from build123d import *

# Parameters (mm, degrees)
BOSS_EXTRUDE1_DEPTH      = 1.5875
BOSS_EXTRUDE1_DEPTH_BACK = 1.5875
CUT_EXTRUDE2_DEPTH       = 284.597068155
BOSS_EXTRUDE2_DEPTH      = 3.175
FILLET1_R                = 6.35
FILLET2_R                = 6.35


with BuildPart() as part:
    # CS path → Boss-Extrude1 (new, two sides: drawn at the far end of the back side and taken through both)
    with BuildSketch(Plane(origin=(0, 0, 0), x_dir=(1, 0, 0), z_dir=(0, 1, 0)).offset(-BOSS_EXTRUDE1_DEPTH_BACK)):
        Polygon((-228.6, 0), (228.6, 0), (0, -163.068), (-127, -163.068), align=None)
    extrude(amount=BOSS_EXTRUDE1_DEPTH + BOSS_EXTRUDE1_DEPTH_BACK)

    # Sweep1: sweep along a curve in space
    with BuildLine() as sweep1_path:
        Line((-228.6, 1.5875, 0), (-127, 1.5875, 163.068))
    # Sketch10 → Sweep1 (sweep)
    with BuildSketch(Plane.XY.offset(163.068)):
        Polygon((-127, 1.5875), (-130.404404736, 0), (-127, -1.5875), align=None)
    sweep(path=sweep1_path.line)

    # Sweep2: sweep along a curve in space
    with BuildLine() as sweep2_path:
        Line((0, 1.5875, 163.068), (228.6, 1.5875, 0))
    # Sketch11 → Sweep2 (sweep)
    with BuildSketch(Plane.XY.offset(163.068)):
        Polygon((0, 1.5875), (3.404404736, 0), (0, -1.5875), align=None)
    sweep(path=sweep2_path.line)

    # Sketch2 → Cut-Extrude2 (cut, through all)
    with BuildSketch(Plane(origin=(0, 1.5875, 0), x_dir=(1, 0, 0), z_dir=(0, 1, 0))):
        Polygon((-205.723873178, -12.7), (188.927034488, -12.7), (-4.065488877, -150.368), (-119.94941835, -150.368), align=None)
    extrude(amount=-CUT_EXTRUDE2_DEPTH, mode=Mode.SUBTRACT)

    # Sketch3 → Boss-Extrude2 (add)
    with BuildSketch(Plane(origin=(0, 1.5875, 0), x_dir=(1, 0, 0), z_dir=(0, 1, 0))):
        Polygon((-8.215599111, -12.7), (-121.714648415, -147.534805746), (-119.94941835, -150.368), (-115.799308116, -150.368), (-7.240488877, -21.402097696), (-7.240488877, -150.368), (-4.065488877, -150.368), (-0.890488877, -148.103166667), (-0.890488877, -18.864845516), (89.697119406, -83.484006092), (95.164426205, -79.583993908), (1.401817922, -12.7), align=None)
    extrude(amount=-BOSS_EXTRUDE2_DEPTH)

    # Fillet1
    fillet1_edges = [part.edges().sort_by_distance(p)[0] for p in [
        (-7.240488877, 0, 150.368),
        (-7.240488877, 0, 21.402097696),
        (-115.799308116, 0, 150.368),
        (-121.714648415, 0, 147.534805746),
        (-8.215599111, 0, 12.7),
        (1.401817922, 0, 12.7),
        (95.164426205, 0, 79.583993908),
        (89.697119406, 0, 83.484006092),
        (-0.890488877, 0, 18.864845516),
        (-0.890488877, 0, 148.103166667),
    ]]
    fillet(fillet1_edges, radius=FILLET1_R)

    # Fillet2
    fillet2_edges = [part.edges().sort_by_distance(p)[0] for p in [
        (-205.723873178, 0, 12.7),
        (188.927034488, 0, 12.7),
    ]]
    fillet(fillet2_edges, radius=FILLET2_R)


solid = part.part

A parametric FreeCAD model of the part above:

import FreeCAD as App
import Part
import Sketcher
from FreeCAD import Vector
Q = App.Units.Quantity


def edges_at(feature, points):
    """Names of the edges that pass closest to the given points."""
    edges = feature.Shape.Edges
    near = lambda p: min(range(len(edges)), key=lambda i: edges[i].distToShape(Part.Vertex(*p))[0])
    return sorted({f"Edge{near(p) + 1}" for p in points})


def add_polygon(sketch, points):
    """Adds a closed chain of lines whose ends are joined by coincident constraints."""
    first, n = sketch.GeometryCount, len(points)
    for a, b in zip(points, points[1:] + points[:1]):
        sketch.addGeometry(Part.LineSegment(App.Vector(*a, 0), App.Vector(*b, 0)), False)
    for i in range(n):
        sketch.addConstraint(Sketcher.Constraint("Coincident", first + i, 2, first + (i + 1) % n, 1))

doc = App.newDocument("Part")
body = doc.addObject("PartDesign::Body", "Body")

# Sketch on XZ plane
sketch1 = body.newObject("Sketcher::SketchObject", "Sketch")
sketch1.AttachmentSupport = (doc.getObject("XZ_Plane"), [""])
sketch1.MapMode = "FlatFace"
add_polygon(sketch1, [(229, 0), (-229, 0), (-127, 163), (0, 163)])  # lines 0-3
sketch1.addConstraint(Sketcher.Constraint("Horizontal", 0))
sketch1.addConstraint(Sketcher.Constraint("Horizontal", 2))
sketch1.addConstraint(Sketcher.Constraint("Symmetric", 0, 2, 3, 2, -1, 1))
sketch1.addConstraint(Sketcher.Constraint("PointOnObject", 2, 2, -2))
sketch1.addConstraint(Sketcher.Constraint("DistanceX", 0, 2, 0, 1, Q("18 in")))
sketch1.addConstraint(Sketcher.Constraint("DistanceX", 2, 1, 2, 2, Q("5 in")))
sketch1.addConstraint(Sketcher.Constraint("DistanceY", -1, 1, 1, 2, Q("6.42 in")))
pad1 = body.newObject("PartDesign::Pad", "Pad")
pad1.Profile = sketch1
pad1.Type = "TwoLengths"
pad1.Length = Q("0.0625 in")
pad1.Length2 = Q("0.0625 in")
pad1.Reversed = True

# Sketch on XY plane
sketch2 = body.newObject("Sketcher::SketchObject", "Sketch001")
sketch2.AttachmentSupport = (doc.getObject("XY_Plane"), [""])
sketch2.MapMode = "FlatFace"
sketch2.AttachmentOffset = App.Placement(Vector(0, 0, 6.42 * 25.4), App.Rotation())
add_polygon(sketch2, [(-127, 1.6), (-130.4, 0), (-127, -1.6)])  # lines 0-2
sketch2.addConstraint(Sketcher.Constraint("Vertical", 2))
sketch2.addConstraint(Sketcher.Constraint("PointOnObject", 0, 2, -1))
sketch2.addConstraint(Sketcher.Constraint("Equal", 0, 1))
sketch2.addConstraint(Sketcher.Constraint("DistanceX", 1, 2, -1, 1, Q("5 in")))
sketch2.addConstraint(Sketcher.Constraint("Angle", 0, Q("-155 deg")))
sketch2.addConstraint(Sketcher.Constraint("DistanceY", 2, 1, 2, 2, Q("0.125 in")))

# Sketch on an angled plane
sketch3 = body.newObject("Sketcher::SketchObject", "Sketch002")
sketch3.Placement = App.Placement(Vector(-164.674272, 0, 102.600793), App.Rotation(Vector(0.528810082, 0, 0.848740182), Vector(0, 0.999999999, 0), Vector(-0.848740182, 0, 0.528810082), "ZXY"))
sketch3.addGeometry(Part.LineSegment(Vector(-121, 2, 0), Vector(71, 2, 0)), False)
sketch3.addConstraint(Sketcher.Constraint("Horizontal", 0))
sketch3.addConstraint(Sketcher.Constraint("DistanceY", -1, 1, 0, 1, Q("0.0625 in")))
sketch3.addConstraint(Sketcher.Constraint("DistanceX", 0, 1, 0, 2, Q("192.129468 mm")))
sketch3.addConstraint(Sketcher.Constraint("DistanceX", 0, 1, -1, 1, Q("120.885985 mm")))
doc.recompute()

additivepipe = body.newObject("PartDesign::AdditivePipe", "AdditivePipe")
additivepipe.Profile = sketch2
additivepipe.Spine = (sketch3, ["Edge1"])

# Sketch on XY plane
sketch4 = body.newObject("Sketcher::SketchObject", "Sketch003")
sketch4.AttachmentSupport = (doc.getObject("XY_Plane"), [""])
sketch4.MapMode = "FlatFace"
sketch4.AttachmentOffset = App.Placement(Vector(0, 0, 6.42 * 25.4), App.Rotation())
add_polygon(sketch4, [(3.4, 0), (0, 1.6), (0, -1.6)])  # lines 0-2
sketch4.addConstraint(Sketcher.Constraint("Vertical", 1))
sketch4.addConstraint(Sketcher.Constraint("Symmetric", 0, 2, 1, 2, -1, 1))
sketch4.addConstraint(Sketcher.Constraint("PointOnObject", 2, 2, -1))
sketch4.addConstraint(Sketcher.Constraint("Angle", 0, Q("155 deg")))
sketch4.addConstraint(Sketcher.Constraint("DistanceY", 1, 2, 1, 1, Q("0.125 in")))

# Sketch on an angled plane
sketch5 = body.newObject("Sketcher::SketchObject", "Sketch004")
sketch5.Placement = App.Placement(Vector(77.093328, 0, 108.074759), App.Rotation(Vector(0.814100021, 0, -0.580724682), Vector(0, 1, 0), Vector(0.580724682, 0, 0.814100021), "ZXY"))
sketch5.addGeometry(Part.LineSegment(Vector(-95, 2, 0), Vector(186, 2, 0)), False)
sketch5.addConstraint(Sketcher.Constraint("Horizontal", 0))
sketch5.addConstraint(Sketcher.Constraint("DistanceY", -1, 1, 0, 1, Q("0.0625 in")))
sketch5.addConstraint(Sketcher.Constraint("DistanceX", -1, 1, 0, 2, Q("7.3269002 in")))
sketch5.addConstraint(Sketcher.Constraint("DistanceX", 0, 1, 0, 2, Q("280.800877 mm")))
doc.recompute()

additivepipe2 = body.newObject("PartDesign::AdditivePipe", "AdditivePipe001")
additivepipe2.Profile = sketch4
additivepipe2.Spine = (sketch5, ["Edge1"])

# Sketch on XZ plane
sketch6 = body.newObject("Sketcher::SketchObject", "Sketch005")
sketch6.AttachmentSupport = (doc.getObject("XZ_Plane"), [""])
sketch6.MapMode = "FlatFace"
sketch6.AttachmentOffset = App.Placement(Vector(0, 0, -0.0625 * 25.4), App.Rotation())
add_polygon(sketch6, [(189, 13), (-206, 13), (-120, 150), (-4, 150)])  # lines 0-3
sketch6.addConstraint(Sketcher.Constraint("Horizontal", 0))
sketch6.addConstraint(Sketcher.Constraint("Horizontal", 2))
sketch6.addConstraint(Sketcher.Constraint("DistanceY", -1, 1, 0, 2, Q("0.5 in")))
sketch6.addConstraint(Sketcher.Constraint("DistanceY", -1, 1, 1, 2, Q("5.92 in")))
sketch6.addConstraint(Sketcher.Constraint("DistanceX", 2, 1, 2, 2, Q("115.883929 mm")))
sketch6.addConstraint(Sketcher.Constraint("Distance", 1, Q("162.20276 mm")))
sketch6.addConstraint(Sketcher.Constraint("DistanceX", 0, 2, 0, 1, Q("394.650908 mm")))
sketch6.addConstraint(Sketcher.Constraint("DistanceX", 1, 2, -1, 1, Q("119.949418 mm")))
pocket1 = body.newObject("PartDesign::Pocket", "Pocket")
pocket1.Profile = sketch6
pocket1.Type = "ThroughAll"
pocket1.Reversed = True

# Sketch on XZ plane
sketch7 = body.newObject("Sketcher::SketchObject", "Sketch006")
sketch7.AttachmentSupport = (doc.getObject("XZ_Plane"), [""])
sketch7.MapMode = "FlatFace"
sketch7.AttachmentOffset = App.Placement(Vector(0, 0, -0.0625 * 25.4), App.Rotation())
add_polygon(sketch7, [(-8.2, 12.7), (-121.7, 147.5), (-119.9, 150.4), (-115.8, 150.4), (-7.2, 21.4), (-7.2, 150.4), (-4.1, 150.4), (-0.9, 148.1), (-0.9, 18.9), (89.7, 83.5), (95.2, 79.6), (1.4, 12.7)])  # lines 0-11
sketch7.addConstraint(Sketcher.Constraint("Horizontal", 2))
sketch7.addConstraint(Sketcher.Constraint("Vertical", 4))
sketch7.addConstraint(Sketcher.Constraint("Horizontal", 5))
sketch7.addConstraint(Sketcher.Constraint("Vertical", 7))
sketch7.addConstraint(Sketcher.Constraint("Horizontal", 11))
sketch7.addConstraint(Sketcher.Constraint("Parallel", 0, 3))
sketch7.addConstraint(Sketcher.Constraint("Parallel", 6, 9))
sketch7.addConstraint(Sketcher.Constraint("Parallel", 8, 10))
sketch7.addConstraint(Sketcher.Constraint("Horizontal", 2, 2, 4, 2))
sketch7.addConstraint(Sketcher.Constraint("DistanceY", -1, 1, 10, 2, Q("0.5 in")))
sketch7.addConstraint(Sketcher.Constraint("DistanceX", 5, 1, 5, 2, Q("0.125 in")))
sketch7.addConstraint(Sketcher.Constraint("DistanceY", -1, 1, 1, 2, Q("5.92 in")))
sketch7.addConstraint(Sketcher.Constraint("DistanceX", 4, 2, 6, 2, Q("0.25 in")))
sketch7.addConstraint(Sketcher.Constraint("DistanceX", 2, 1, 2, 2, Q("4.15011 mm")))
sketch7.addConstraint(Sketcher.Constraint("DistanceY", 7, 2, 7, 1, Q("129.238321 mm")))
sketch7.addConstraint(Sketcher.Constraint("DistanceX", 11, 2, -1, 1, Q("8.215599 mm")))
sketch7.addConstraint(Sketcher.Constraint("DistanceX", 10, 2, 8, 2, Q("88.295301 mm")))
sketch7.addConstraint(Sketcher.Constraint("Distance", 0, Q("176.245451 mm")))
sketch7.addConstraint(Sketcher.Constraint("DistanceX", 11, 2, 11, 1, Q("9.617417 mm")))
sketch7.addConstraint(Sketcher.Constraint("DistanceY", 4, 1, 4, 2, Q("128.965902 mm")))
sketch7.addConstraint(Sketcher.Constraint("DistanceX", 0, 2, -1, 1, Q("121.714648 mm")))
sketch7.addConstraint(Sketcher.Constraint("DistanceX", 1, 2, -1, 1, Q("119.949418 mm")))
sketch7.addConstraint(Sketcher.Constraint("DistanceY", 0, 2, 6, 2, Q("0.568361 mm")))
sketch7.addConstraint(Sketcher.Constraint("DistanceY", 8, 2, 6, 2, Q("64.619161 mm")))
pad2 = body.newObject("PartDesign::Pad", "Pad001")
pad2.Profile = sketch7
pad2.Length = Q("0.125 in")
doc.recompute()

fillet = body.newObject("PartDesign::Fillet", "Fillet")
fillet.Base = (pad2, edges_at(pad2, [
    (-7.24, 0, 150.368),
    (-7.24, 0, 21.402),
    (-115.799, 0, 150.368),
    (-121.715, 0, 147.535),
    (-8.216, 0, 12.7),
    (1.402, 0, 12.7),
    (95.164, 0, 79.584),
    (89.697, 0, 83.484),
    (-0.89, 0, 18.865),
    (-0.89, 0, 148.103),
]))
fillet.Radius = Q("0.25 in")
doc.recompute()

fillet2 = body.newObject("PartDesign::Fillet", "Fillet001")
fillet2.Base = (fillet, edges_at(fillet, [(-205.724, 0, 12.7), (188.927, 0, 12.7)]))
fillet2.Radius = Q("0.25 in")

doc.recompute()
